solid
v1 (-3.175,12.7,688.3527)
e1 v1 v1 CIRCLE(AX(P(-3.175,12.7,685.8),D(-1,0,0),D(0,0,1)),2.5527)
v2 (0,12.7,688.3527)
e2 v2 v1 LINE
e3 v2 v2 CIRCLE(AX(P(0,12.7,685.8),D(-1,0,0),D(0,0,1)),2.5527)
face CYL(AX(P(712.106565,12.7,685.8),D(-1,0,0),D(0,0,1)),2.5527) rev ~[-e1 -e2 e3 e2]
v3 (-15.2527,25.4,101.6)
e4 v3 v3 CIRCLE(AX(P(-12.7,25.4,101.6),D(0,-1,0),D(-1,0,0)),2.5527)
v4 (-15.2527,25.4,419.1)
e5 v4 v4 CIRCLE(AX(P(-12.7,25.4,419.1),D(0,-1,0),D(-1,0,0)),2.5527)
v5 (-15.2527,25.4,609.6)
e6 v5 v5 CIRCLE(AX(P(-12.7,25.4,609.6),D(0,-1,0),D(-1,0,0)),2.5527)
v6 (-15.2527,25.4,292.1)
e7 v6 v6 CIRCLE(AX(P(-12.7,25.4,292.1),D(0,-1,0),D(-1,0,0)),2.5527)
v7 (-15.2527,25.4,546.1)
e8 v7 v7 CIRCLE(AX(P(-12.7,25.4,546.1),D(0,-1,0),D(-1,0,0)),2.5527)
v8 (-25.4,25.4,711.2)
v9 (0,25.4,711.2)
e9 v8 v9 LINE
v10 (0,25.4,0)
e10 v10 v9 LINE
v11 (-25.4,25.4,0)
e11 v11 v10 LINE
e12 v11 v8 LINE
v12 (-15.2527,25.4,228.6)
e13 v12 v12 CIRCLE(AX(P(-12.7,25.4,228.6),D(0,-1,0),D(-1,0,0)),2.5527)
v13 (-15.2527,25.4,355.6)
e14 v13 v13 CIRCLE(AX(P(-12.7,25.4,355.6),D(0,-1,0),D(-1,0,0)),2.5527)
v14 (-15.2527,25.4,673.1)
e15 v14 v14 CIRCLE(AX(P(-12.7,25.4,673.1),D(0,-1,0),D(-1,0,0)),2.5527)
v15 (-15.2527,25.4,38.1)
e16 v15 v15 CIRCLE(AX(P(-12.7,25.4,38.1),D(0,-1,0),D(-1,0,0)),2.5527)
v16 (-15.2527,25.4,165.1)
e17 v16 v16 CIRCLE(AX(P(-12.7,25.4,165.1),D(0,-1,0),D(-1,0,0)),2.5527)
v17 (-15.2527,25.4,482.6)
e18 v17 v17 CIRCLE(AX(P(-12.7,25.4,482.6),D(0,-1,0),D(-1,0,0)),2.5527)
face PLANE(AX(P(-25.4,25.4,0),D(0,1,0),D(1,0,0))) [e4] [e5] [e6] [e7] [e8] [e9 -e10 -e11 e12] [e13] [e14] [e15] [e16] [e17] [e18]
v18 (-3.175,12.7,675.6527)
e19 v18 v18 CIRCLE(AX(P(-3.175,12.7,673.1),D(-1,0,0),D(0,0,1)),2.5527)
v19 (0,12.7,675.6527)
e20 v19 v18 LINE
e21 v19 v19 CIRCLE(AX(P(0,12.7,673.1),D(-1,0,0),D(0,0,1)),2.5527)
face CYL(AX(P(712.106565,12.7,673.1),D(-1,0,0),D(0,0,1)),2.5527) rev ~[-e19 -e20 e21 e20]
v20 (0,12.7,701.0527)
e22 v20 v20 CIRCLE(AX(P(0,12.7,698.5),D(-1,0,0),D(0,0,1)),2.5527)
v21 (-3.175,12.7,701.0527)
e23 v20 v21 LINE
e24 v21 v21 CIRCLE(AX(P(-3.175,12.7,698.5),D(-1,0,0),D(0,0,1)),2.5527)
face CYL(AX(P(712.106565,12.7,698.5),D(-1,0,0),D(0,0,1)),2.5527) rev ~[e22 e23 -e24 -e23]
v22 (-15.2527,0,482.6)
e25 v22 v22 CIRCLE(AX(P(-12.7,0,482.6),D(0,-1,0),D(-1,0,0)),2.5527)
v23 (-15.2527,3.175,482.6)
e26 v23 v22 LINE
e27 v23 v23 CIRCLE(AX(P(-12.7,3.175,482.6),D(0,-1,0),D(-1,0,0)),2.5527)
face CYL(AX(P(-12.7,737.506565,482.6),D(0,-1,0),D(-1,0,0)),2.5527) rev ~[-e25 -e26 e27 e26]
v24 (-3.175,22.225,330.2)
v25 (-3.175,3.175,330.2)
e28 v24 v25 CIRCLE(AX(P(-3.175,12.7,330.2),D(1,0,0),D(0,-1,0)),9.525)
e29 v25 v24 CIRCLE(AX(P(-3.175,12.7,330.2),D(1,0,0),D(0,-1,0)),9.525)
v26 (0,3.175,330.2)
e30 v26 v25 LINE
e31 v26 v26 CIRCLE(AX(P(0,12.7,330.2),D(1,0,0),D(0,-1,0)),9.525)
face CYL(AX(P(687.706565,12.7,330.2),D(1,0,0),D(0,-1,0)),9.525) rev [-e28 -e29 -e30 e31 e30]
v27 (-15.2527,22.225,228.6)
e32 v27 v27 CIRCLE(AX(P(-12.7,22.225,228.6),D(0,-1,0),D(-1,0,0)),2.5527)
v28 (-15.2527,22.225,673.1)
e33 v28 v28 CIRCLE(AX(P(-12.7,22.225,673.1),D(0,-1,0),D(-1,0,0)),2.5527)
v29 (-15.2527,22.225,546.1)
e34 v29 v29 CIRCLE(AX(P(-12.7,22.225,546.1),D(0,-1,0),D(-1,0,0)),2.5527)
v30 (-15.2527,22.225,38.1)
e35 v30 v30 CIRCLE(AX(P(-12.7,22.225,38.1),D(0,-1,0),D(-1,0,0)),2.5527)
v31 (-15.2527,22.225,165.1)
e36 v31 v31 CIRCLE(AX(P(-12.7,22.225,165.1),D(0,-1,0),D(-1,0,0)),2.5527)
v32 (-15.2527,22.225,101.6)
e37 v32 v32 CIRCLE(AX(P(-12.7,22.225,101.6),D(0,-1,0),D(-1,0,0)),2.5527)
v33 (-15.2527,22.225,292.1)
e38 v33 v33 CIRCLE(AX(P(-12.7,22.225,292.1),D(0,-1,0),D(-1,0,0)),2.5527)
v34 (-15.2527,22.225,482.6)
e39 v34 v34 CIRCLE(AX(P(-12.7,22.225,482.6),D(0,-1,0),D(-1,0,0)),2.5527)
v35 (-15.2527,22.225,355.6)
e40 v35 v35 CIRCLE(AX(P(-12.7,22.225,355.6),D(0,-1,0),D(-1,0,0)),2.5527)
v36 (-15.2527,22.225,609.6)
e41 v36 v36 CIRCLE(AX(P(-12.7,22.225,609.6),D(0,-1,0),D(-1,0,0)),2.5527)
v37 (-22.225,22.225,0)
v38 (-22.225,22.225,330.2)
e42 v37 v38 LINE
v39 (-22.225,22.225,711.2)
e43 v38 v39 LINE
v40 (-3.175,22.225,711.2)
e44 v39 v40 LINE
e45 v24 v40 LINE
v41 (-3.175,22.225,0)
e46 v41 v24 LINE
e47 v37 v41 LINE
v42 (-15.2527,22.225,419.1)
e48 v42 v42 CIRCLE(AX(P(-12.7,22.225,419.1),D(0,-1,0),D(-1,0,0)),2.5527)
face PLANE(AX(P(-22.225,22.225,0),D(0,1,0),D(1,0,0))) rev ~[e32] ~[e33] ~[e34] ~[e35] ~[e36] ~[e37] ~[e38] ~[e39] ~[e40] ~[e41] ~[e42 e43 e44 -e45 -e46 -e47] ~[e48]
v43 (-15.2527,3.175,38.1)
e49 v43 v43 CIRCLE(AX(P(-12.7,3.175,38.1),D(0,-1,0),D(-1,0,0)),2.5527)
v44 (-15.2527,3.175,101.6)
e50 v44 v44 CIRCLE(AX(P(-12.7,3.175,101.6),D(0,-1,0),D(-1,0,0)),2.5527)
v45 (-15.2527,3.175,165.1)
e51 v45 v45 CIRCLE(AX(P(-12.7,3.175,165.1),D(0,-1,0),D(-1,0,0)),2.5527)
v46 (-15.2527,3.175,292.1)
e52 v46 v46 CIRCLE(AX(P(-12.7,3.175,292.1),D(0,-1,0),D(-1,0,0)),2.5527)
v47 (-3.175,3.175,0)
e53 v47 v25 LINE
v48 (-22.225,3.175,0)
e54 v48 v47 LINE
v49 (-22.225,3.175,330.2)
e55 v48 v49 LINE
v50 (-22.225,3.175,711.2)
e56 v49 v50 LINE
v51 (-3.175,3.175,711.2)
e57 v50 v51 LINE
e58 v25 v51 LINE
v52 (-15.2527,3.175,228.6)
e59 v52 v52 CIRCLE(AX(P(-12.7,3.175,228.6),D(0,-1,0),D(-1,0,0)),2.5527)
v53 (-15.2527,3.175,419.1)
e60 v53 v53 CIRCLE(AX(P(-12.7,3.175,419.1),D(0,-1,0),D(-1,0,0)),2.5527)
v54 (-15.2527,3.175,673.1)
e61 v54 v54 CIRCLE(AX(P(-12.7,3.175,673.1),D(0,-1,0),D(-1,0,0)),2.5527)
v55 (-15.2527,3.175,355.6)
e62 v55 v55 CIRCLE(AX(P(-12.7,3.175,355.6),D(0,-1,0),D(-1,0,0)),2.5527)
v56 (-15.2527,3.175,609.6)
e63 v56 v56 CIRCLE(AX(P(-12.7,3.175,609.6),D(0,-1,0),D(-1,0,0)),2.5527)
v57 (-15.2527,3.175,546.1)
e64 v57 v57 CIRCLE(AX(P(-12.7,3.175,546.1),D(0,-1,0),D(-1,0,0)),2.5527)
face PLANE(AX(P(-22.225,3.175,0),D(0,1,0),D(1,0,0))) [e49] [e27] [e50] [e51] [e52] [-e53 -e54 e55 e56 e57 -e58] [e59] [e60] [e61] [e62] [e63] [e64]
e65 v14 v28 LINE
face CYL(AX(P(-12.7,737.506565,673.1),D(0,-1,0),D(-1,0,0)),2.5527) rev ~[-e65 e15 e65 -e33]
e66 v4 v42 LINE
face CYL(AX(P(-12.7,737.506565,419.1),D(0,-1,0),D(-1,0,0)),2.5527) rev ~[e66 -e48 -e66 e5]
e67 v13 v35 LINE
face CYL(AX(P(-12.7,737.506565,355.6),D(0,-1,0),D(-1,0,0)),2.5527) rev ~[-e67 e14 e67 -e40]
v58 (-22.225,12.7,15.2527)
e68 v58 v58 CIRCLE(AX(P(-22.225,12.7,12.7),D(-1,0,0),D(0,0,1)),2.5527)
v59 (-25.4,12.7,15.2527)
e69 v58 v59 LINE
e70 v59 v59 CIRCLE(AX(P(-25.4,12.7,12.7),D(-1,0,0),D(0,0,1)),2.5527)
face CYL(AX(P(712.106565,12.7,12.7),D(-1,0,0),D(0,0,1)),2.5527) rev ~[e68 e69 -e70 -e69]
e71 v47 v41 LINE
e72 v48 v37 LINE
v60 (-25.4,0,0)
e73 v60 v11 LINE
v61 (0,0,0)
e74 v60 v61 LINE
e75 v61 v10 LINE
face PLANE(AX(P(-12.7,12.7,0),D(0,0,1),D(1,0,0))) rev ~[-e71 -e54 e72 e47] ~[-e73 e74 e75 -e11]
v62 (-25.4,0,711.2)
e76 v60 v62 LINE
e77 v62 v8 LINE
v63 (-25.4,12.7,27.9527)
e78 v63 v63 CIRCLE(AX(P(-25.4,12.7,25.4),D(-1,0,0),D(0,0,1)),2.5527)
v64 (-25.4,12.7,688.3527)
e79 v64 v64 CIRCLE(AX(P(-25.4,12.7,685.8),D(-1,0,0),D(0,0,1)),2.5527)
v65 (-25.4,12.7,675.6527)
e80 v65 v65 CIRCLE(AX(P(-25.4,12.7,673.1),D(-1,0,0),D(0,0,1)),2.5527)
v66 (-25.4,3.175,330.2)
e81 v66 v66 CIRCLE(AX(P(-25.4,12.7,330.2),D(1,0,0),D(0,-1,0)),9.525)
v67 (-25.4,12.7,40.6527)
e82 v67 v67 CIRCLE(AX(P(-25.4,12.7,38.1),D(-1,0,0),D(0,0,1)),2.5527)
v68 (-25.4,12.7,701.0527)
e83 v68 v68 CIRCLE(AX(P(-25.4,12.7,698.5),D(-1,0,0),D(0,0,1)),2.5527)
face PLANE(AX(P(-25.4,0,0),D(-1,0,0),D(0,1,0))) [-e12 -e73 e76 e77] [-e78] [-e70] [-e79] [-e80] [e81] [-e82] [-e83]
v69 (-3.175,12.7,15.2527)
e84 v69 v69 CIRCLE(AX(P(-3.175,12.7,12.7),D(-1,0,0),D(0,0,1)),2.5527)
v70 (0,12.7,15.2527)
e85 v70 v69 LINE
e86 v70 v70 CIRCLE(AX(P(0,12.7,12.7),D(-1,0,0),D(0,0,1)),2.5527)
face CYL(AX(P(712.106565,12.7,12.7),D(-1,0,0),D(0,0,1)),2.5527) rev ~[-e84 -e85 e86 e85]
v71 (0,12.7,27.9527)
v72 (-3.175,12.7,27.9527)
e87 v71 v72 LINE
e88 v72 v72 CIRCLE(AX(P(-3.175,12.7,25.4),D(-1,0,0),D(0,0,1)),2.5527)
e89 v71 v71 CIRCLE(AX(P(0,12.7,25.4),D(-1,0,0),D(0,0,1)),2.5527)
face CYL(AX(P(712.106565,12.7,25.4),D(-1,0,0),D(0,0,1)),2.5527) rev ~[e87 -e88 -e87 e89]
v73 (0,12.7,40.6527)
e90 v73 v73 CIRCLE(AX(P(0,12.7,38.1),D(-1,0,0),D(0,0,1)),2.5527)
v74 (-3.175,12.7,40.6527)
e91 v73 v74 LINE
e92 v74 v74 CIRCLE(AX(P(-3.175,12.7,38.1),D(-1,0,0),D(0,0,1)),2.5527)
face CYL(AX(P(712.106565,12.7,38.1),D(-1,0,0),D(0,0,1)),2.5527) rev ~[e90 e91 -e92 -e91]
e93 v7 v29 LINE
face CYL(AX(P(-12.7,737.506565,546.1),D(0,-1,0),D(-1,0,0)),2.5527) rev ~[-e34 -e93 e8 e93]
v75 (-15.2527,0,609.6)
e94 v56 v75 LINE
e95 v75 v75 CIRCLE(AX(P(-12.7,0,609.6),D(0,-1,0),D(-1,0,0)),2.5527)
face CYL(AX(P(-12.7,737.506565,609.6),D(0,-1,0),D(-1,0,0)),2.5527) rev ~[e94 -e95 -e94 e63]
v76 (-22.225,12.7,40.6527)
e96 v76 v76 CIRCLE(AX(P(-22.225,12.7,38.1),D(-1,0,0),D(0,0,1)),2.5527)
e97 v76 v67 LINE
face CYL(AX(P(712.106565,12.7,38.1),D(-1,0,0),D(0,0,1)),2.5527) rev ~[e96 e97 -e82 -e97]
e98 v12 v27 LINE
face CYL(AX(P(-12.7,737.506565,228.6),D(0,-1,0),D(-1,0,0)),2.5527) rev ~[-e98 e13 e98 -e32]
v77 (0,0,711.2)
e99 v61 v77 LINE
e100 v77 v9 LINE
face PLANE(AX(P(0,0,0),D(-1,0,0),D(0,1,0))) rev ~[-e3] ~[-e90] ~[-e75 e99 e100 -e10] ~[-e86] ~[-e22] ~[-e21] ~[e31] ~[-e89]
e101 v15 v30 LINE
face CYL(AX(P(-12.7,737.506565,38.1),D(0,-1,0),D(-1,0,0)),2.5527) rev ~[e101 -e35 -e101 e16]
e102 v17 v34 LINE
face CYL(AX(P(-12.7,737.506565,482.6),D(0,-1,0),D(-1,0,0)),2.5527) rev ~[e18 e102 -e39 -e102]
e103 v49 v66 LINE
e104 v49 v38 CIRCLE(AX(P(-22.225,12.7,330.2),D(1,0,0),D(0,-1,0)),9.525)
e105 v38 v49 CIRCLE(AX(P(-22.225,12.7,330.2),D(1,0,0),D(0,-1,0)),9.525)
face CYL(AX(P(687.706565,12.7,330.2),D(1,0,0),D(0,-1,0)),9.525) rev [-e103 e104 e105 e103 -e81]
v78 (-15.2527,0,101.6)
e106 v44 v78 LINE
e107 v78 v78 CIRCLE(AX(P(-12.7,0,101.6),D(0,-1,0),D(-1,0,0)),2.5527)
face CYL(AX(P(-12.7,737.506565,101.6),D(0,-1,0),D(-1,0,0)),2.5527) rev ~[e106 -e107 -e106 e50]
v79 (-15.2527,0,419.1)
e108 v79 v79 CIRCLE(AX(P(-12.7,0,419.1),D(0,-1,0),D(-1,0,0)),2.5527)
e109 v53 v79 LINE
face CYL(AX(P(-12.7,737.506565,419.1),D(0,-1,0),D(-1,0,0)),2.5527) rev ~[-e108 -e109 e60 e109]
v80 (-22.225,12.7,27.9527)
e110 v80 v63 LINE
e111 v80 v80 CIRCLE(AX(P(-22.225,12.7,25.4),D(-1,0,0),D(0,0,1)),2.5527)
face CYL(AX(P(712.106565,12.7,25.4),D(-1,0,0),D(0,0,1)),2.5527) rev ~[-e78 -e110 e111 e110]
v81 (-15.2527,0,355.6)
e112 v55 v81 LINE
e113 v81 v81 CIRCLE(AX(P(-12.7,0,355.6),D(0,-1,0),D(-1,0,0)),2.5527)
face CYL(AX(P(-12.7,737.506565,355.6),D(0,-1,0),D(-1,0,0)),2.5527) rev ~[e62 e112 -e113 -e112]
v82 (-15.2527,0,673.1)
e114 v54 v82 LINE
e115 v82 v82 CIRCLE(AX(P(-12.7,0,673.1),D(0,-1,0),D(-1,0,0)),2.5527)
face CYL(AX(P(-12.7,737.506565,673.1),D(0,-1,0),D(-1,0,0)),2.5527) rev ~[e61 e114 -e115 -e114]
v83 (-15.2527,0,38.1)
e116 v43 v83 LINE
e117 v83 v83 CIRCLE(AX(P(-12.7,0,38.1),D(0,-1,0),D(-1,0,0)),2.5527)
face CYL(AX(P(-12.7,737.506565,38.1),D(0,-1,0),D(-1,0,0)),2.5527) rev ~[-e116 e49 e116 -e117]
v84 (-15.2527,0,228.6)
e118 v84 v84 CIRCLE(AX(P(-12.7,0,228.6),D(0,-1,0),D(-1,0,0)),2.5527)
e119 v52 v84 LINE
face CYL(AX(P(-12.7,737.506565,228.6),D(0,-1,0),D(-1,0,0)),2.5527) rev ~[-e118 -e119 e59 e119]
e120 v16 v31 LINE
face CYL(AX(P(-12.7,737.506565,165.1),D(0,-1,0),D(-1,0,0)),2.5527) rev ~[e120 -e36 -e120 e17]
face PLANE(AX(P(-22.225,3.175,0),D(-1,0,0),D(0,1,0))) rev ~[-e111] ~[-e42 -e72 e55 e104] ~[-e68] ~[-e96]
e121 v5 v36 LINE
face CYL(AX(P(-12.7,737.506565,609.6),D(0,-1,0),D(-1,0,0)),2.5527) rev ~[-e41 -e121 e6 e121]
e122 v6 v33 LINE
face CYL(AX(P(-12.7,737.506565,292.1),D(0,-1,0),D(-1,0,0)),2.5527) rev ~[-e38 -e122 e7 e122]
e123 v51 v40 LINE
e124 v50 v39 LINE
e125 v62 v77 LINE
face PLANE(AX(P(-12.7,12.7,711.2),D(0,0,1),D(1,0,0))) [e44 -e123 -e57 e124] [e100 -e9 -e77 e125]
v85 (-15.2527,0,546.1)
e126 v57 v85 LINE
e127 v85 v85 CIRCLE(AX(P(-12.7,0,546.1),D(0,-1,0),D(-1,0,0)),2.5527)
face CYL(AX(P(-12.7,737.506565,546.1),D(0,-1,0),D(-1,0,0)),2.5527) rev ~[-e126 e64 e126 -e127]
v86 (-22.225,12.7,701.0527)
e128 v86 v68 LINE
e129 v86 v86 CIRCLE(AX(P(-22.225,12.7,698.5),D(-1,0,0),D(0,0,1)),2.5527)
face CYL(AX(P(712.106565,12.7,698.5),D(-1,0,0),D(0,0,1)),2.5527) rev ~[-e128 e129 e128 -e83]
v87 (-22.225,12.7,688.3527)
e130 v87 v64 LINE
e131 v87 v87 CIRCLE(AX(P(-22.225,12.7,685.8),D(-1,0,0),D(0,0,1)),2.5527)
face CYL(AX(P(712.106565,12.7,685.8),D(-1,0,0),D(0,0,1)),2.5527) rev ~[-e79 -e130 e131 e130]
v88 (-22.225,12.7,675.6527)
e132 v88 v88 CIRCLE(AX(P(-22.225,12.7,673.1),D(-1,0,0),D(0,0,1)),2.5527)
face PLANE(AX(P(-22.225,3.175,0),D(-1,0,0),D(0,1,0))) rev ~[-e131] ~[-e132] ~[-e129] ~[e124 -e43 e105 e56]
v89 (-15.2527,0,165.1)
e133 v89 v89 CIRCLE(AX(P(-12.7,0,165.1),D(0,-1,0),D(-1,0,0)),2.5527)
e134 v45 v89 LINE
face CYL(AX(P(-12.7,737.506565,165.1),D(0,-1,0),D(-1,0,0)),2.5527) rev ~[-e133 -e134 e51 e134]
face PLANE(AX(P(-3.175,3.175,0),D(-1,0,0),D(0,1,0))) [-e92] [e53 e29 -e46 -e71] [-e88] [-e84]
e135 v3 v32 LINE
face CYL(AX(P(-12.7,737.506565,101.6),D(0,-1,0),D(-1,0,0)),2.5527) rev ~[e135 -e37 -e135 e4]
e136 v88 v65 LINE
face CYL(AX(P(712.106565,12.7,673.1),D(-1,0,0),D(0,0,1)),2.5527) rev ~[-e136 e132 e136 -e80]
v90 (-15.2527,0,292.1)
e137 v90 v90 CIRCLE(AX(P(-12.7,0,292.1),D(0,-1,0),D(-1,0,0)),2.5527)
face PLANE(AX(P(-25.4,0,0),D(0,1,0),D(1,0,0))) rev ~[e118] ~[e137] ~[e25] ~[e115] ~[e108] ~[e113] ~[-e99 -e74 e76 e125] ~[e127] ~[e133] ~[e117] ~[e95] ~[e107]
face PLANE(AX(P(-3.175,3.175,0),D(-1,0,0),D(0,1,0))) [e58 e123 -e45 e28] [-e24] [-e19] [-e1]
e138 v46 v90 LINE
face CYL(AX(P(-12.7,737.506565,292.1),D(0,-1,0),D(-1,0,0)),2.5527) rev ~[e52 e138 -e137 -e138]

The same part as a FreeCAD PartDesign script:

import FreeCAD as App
import Part
import Sketcher
Q = App.Units.Quantity


def add_polygon(sketch, points):
    """Adds a closed chain of lines whose ends are joined by coincident constraints."""
    first, n = sketch.GeometryCount, len(points)
    for a, b in zip(points, points[1:] + points[:1]):
        sketch.addGeometry(Part.LineSegment(App.Vector(*a, 0), App.Vector(*b, 0)), False)
    for i in range(n):
        sketch.addConstraint(Sketcher.Constraint("Coincident", first + i, 2, first + (i + 1) % n, 1))

doc = App.newDocument("Part")
params = doc.addObject("Spreadsheet::Sheet", "Params")
for row, (alias, value) in enumerate([
    ("sketch1_width", "1 in"),
    ("sketch1_width2", "0.75 in"),
    ("pad1_length", "28 in"),
    ("sketch2_diameter", "0.201 in"),
    ("hole_diameter", "0.201 in"),
    ("linearpattern_pitch", "2.5 in"),
    ("sketch3_diameter", "0.201 in"),
    ("hole2_diameter", "0.201 in"),
    ("sketch4_diameter", "0.201 in"),
    ("hole3_diameter", "0.201 in"),
    ("sketch5_diameter", "0.75 in"),
], start=1):
    params.set(f"A{row}", alias)
    params.set(f"B{row}", "=" + value)
    params.setAlias(f"B{row}", alias)

body = doc.addObject("PartDesign::Body", "Body")

# Sketch on XY plane
sketch1 = body.newObject("Sketcher::SketchObject", "Sketch")
sketch1.AttachmentSupport = (doc.getObject("XY_Plane"), [""])
sketch1.MapMode = "FlatFace"
add_polygon(sketch1, [(-25, 25), (-25, 0), (0, 0), (0, 25)])  # lines 0-3
add_polygon(sketch1, [(-3, 3), (-22, 3), (-22, 22), (-3, 22)])  # lines 4-7
sketch1.addConstraint([
    Sketcher.Constraint("Vertical", 0),
    Sketcher.Constraint("Horizontal", 1),
    Sketcher.Constraint("Vertical", 2),
    Sketcher.Constraint("Horizontal", 3),
    Sketcher.Constraint("Horizontal", 4),
    Sketcher.Constraint("Vertical", 5),
    Sketcher.Constraint("Horizontal", 6),
    Sketcher.Constraint("Vertical", 7),
    Sketcher.Constraint("Coincident", 1, 2, -1, 1),
    Sketcher.Constraint("Equal", 3, 0),
    Sketcher.Constraint("Equal", 6, 5),
    Sketcher.Constraint("DistanceX", 1, 1, 1, 2, Q("1 in")),
    Sketcher.Constraint("DistanceX", 4, 2, 4, 1, Q("0.75 in")),
    Sketcher.Constraint("DistanceX", 4, 2, -1, 1, Q("0.875 in")),
    Sketcher.Constraint("DistanceY", -1, 1, 4, 2, Q("0.125 in")),
])
sketch1.setExpression("Constraints[19]", "Params.sketch1_width")
sketch1.setExpression("Constraints[20]", "Params.sketch1_width2")
pad1 = body.newObject("PartDesign::Pad", "Pad")
pad1.Profile = sketch1
pad1.setExpression("Length", "Params.pad1_length")

# Sketch on XZ plane
sketch2 = body.newObject("Sketcher::SketchObject", "Sketch001")
sketch2.AttachmentSupport = (doc.getObject("XZ_Plane"), [""])
sketch2.MapMode = "FlatFace"
sketch2.AttachmentOffset = App.Placement(App.Vector(0, 0, -1 * 25.4), App.Rotation())
sketch2.addGeometry(Part.Circle(App.Vector(-12.7, 673.1, 0), App.Vector(0, 0, 1), 2.6), False)
sketch2.addConstraint([
    Sketcher.Constraint("Diameter", 0, Q("0.201 in")),
    Sketcher.Constraint("DistanceX", 0, 3, -1, 1, Q("0.5 in")),
    Sketcher.Constraint("DistanceY", -1, 1, 0, 3, Q("26.5 in")),
])
sketch2.setExpression("Constraints[0]", "Params.sketch2_diameter")
doc.recompute()
hole = body.newObject("PartDesign::Hole", "Hole")
hole.Profile = sketch2
hole.ThreadType = "None"
hole.setExpression("Diameter", "Params.hole_diameter")
hole.DepthType = "ThroughAll"
hole.Reversed = True
doc.recompute()

linearpattern = body.newObject("PartDesign::LinearPattern", "LinearPattern")
linearpattern.Originals = [hole]
linearpattern.Direction = (doc.getObject("Z_Axis"), [""])
linearpattern.Mode = "offset"
linearpattern.setExpression("Offset", "Params.linearpattern_pitch")
linearpattern.Occurrences = 11
linearpattern.Reversed = True
body.Tip = linearpattern

# Sketch on YZ plane
sketch3 = body.newObject("Sketcher::SketchObject", "Sketch002")
sketch3.AttachmentSupport = (doc.getObject("YZ_Plane"), [""])
sketch3.MapMode = "FlatFace"
sketch3.addGeometry([
    Part.Circle(App.Vector(12.7, 698.5, 0), App.Vector(0, 0, 1), 2.6),
    Part.Circle(App.Vector(12.7, 685.8, 0), App.Vector(0, 0, 1), 2.6),
    Part.Circle(App.Vector(12.7, 673.1, 0), App.Vector(0, 0, 1), 2.6),
], False)
sketch3.addConstraint([
    Sketcher.Constraint("Equal", 0, 1),
    Sketcher.Constraint("Equal", 1, 2),
    Sketcher.Constraint("Vertical", 0, 3, 1, 3),
    Sketcher.Constraint("Vertical", 1, 3, 2, 3),
    Sketcher.Constraint("Diameter", 0, Q("0.201 in")),
    Sketcher.Constraint("DistanceY", -1, 1, 1, 3, Q("27 in")),
    Sketcher.Constraint("DistanceY", 2, 3, 0, 3, Q("1 in")),
    Sketcher.Constraint("DistanceX", -1, 1, 0, 3, Q("0.5 in")),
    Sketcher.Constraint("DistanceY", -1, 1, 0, 3, Q("27.5 in")),
])
sketch3.setExpression("Constraints[4]", "Params.sketch3_diameter")
doc.recompute()
hole2 = body.newObject("PartDesign::Hole", "Hole001")
hole2.Profile = sketch3
hole2.ThreadType = "None"
hole2.setExpression("Diameter", "Params.hole2_diameter")
hole2.DepthType = "ThroughAll"

# Sketch on YZ plane
sketch4 = body.newObject("Sketcher::SketchObject", "Sketch003")
sketch4.AttachmentSupport = (doc.getObject("YZ_Plane"), [""])
sketch4.MapMode = "FlatFace"
sketch4.addGeometry([
    Part.Circle(App.Vector(12.7, 38.1, 0), App.Vector(0, 0, 1), 2.6),
    Part.Circle(App.Vector(12.7, 25.4, 0), App.Vector(0, 0, 1), 2.6),
    Part.Circle(App.Vector(12.7, 12.7, 0), App.Vector(0, 0, 1), 2.6),
], False)
sketch4.addConstraint([
    Sketcher.Constraint("Equal", 0, 1),
    Sketcher.Constraint("Equal", 1, 2),
    Sketcher.Constraint("Vertical", 0, 3, 1, 3),
    Sketcher.Constraint("Vertical", 1, 3, 2, 3),
    Sketcher.Constraint("Diameter", 0, Q("0.201 in")),
    Sketcher.Constraint("DistanceY", -1, 1, 1, 3, Q("1 in")),
    Sketcher.Constraint("DistanceY", 2, 3, 0, 3, Q("1 in")),
    Sketcher.Constraint("DistanceX", -1, 1, 0, 3, Q("0.5 in")),
    Sketcher.Constraint("DistanceY", -1, 1, 0, 3, Q("1.5 in")),
])
sketch4.setExpression("Constraints[4]", "Params.sketch4_diameter")
doc.recompute()
hole3 = body.newObject("PartDesign::Hole", "Hole002")
hole3.Profile = sketch4
hole3.ThreadType = "None"
hole3.setExpression("Diameter", "Params.hole3_diameter")
hole3.DepthType = "ThroughAll"

# Sketch on YZ plane
sketch5 = body.newObject("Sketcher::SketchObject", "Sketch004")
sketch5.AttachmentSupport = (doc.getObject("YZ_Plane"), [""])
sketch5.MapMode = "FlatFace"
sketch5.AttachmentOffset = App.Placement(App.Vector(0, 0, -1 * 25.4), App.Rotation())
sketch5.addGeometry(Part.Circle(App.Vector(13, 330, 0), App.Vector(0, 0, 1), 10), False)
sketch5.addConstraint([
    Sketcher.Constraint("Diameter", 0, Q("0.75 in")),
    Sketcher.Constraint("DistanceY", -1, 1, 0, 3, Q("13 in")),
    Sketcher.Constraint("DistanceX", -1, 1, 0, 3, Q("0.5 in")),
])
sketch5.setExpression("Constraints[0]", "Params.sketch5_diameter")
pocket1 = body.newObject("PartDesign::Pocket", "Pocket")
pocket1.Profile = sketch5
pocket1.Type = "ThroughAll"
pocket1.Midplane = True

doc.recompute()
